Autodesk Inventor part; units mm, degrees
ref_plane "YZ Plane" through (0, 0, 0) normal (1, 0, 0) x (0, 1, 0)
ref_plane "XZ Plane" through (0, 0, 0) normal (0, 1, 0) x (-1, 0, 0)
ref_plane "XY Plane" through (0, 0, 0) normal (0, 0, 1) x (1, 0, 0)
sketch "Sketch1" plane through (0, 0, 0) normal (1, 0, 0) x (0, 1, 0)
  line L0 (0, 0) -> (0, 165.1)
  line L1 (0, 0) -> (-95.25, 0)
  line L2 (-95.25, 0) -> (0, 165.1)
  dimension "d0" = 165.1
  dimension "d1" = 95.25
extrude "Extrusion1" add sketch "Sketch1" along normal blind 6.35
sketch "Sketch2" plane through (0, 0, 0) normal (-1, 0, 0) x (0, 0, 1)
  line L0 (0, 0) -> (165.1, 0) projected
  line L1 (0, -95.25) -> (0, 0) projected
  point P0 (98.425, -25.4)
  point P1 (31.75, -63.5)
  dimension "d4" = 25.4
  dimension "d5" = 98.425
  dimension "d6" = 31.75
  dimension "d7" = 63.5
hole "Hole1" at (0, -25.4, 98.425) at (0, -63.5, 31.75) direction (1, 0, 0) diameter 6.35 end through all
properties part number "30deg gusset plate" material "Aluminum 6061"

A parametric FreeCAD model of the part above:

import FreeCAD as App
import Part
import Sketcher
Q = App.Units.Quantity

doc = App.newDocument("Part")
body = doc.addObject("PartDesign::Body", "Body")

# Sketch on YZ plane
sketch1 = body.newObject("Sketcher::SketchObject", "Sketch")
sketch1.AttachmentSupport = (doc.getObject("YZ_Plane"), [""])
sketch1.MapMode = "FlatFace"
sketch1.addGeometry(Part.LineSegment(App.Vector(-95, 0, 0), App.Vector(0, 0, 0)), False)
sketch1.addGeometry(Part.LineSegment(App.Vector(0, 0, 0), App.Vector(0, 165, 0)), False)
sketch1.addGeometry(Part.LineSegment(App.Vector(0, 165, 0), App.Vector(-95, 0, 0)), False)
sketch1.addConstraint(Sketcher.Constraint("Coincident", 0, 2, 1, 1))
sketch1.addConstraint(Sketcher.Constraint("Coincident", 1, 2, 2, 1))
sketch1.addConstraint(Sketcher.Constraint("Coincident", 2, 2, 0, 1))
sketch1.addConstraint(Sketcher.Constraint("Horizontal", 0))
sketch1.addConstraint(Sketcher.Constraint("Vertical", 1))
sketch1.addConstraint(Sketcher.Constraint("Coincident", 0, 2, -1, 1))
sketch1.addConstraint(Sketcher.Constraint("DistanceY", 1, 1, 1, 2, Q("6.5 in")))
sketch1.addConstraint(Sketcher.Constraint("DistanceX", 0, 1, 0, 2, Q("3.75 in")))
pad1 = body.newObject("PartDesign::Pad", "Pad")
pad1.Profile = sketch1
pad1.Length = Q("0.25 in")

# Sketch on YZ plane
sketch2 = body.newObject("Sketcher::SketchObject", "Sketch001")
sketch2.AttachmentSupport = (doc.getObject("YZ_Plane"), [""])
sketch2.MapMode = "FlatFace"
sketch2.addGeometry(Part.Circle(App.Vector(-25.4, 98.4, 0), App.Vector(0, 0, 1), 3.2), False)
sketch2.addGeometry(Part.Circle(App.Vector(-63.5, 31.8, 0), App.Vector(0, 0, 1), 3.2), False)
sketch2.addConstraint(Sketcher.Constraint("Equal", 0, 1))
sketch2.addConstraint(Sketcher.Constraint("Diameter", 0, Q("0.25 in")))
sketch2.addConstraint(Sketcher.Constraint("DistanceX", 0, 3, -1, 1, Q("1 in")))
sketch2.addConstraint(Sketcher.Constraint("DistanceX", 1, 3, -1, 1, Q("2.5 in")))
sketch2.addConstraint(Sketcher.Constraint("DistanceY", -1, 1, 1, 3, Q("1.25 in")))
sketch2.addConstraint(Sketcher.Constraint("DistanceY", -1, 1, 0, 3, Q("3.875 in")))
doc.recompute()
hole = body.newObject("PartDesign::Hole", "Hole")
hole.Profile = sketch2
hole.ThreadType = "None"
hole.Diameter = Q("0.25 in")
hole.DepthType = "ThroughAll"
hole.Reversed = True

doc.recompute()
